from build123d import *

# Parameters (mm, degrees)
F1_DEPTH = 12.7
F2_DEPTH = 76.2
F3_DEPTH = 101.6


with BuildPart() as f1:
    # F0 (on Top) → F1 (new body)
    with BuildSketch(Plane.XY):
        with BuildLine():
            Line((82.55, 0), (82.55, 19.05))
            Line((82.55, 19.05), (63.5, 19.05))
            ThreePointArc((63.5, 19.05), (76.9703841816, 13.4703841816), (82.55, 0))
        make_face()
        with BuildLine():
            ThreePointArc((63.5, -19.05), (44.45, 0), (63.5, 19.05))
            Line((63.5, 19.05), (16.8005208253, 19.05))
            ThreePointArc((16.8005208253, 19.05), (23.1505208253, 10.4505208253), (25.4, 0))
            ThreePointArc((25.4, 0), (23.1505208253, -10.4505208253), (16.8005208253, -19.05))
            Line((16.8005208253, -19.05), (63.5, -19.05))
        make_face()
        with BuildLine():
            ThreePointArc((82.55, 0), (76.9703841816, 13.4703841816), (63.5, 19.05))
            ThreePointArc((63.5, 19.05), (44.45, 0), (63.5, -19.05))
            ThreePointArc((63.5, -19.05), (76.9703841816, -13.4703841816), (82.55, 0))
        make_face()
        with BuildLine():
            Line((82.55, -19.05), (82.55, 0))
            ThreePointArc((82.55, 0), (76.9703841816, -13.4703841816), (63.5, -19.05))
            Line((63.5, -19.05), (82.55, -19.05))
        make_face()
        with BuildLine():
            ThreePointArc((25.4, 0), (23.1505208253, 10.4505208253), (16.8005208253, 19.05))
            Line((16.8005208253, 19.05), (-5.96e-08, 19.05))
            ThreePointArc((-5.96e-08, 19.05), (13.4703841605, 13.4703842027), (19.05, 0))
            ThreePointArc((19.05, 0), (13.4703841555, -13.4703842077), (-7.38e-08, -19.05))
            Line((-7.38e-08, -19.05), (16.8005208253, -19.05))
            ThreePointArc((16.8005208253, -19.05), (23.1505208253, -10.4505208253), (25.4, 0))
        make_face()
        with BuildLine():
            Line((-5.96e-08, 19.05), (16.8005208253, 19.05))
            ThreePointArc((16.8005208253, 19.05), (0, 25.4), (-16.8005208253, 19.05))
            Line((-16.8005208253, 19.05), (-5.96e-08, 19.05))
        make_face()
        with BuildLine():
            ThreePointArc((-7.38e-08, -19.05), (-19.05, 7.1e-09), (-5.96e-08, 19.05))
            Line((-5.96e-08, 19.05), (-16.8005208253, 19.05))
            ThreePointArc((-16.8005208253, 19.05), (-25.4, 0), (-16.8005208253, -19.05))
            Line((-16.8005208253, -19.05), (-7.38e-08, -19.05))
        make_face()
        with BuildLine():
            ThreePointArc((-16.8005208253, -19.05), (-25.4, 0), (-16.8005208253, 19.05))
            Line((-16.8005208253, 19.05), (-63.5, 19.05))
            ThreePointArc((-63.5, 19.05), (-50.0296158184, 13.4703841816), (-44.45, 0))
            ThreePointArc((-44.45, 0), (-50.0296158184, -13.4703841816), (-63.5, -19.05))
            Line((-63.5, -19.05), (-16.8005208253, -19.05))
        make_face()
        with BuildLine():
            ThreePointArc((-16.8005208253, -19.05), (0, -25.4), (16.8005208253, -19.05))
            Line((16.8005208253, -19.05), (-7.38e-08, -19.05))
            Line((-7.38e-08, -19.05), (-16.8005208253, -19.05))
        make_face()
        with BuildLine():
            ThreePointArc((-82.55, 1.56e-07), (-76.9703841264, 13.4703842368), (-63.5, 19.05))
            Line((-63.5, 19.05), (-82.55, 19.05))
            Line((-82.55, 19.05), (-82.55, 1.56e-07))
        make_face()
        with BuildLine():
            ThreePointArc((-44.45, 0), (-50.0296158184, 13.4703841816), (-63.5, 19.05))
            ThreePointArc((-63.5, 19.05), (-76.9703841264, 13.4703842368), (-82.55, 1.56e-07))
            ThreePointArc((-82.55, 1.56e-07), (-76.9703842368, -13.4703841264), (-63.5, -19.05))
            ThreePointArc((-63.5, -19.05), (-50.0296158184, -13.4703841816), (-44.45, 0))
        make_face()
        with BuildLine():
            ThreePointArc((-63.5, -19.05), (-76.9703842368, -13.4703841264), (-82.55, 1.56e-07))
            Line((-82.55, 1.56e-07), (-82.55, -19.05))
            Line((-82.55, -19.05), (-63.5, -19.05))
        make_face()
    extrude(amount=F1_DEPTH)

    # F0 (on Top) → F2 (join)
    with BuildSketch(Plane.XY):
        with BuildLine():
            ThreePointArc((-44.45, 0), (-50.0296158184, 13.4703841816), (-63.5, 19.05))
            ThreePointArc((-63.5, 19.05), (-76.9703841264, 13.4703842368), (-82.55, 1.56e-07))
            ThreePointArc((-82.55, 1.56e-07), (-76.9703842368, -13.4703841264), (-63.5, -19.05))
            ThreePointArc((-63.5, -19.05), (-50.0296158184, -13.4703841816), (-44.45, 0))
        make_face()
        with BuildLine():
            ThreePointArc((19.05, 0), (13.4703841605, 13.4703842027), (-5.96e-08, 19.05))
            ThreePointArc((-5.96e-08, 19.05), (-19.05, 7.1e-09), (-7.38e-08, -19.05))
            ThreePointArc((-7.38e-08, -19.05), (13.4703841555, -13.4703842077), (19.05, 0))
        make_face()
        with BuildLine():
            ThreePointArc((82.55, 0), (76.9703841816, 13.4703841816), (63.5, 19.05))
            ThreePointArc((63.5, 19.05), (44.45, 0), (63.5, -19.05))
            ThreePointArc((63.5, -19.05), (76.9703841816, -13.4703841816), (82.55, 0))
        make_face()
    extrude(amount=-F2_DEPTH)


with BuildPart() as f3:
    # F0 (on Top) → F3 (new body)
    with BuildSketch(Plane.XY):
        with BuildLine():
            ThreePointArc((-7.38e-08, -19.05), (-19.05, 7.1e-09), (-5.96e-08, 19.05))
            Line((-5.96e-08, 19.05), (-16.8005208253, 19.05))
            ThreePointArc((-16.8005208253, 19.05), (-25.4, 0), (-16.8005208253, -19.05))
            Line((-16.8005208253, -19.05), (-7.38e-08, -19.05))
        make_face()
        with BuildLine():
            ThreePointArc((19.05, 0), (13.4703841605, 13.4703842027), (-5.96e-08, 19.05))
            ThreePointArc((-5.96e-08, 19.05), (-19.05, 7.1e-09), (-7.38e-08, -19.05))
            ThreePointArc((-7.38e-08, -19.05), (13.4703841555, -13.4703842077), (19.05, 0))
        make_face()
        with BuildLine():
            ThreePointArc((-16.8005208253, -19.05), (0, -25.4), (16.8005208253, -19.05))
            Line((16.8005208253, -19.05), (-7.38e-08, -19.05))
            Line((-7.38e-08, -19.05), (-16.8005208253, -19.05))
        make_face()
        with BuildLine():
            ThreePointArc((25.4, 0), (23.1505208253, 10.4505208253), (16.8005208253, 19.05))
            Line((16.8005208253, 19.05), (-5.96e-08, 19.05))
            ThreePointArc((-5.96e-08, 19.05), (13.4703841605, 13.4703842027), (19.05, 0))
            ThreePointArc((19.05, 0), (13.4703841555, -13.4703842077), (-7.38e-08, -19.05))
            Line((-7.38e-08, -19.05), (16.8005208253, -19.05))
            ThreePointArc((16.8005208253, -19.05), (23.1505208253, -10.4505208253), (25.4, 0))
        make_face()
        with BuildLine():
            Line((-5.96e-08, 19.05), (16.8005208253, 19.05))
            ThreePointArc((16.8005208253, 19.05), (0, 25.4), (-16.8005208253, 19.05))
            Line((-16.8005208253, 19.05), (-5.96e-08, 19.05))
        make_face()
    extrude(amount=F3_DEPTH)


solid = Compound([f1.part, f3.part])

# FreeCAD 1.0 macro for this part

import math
import FreeCAD as App
import Part
import Sketcher
from FreeCAD import Vector
Q = App.Units.Quantity

doc = App.newDocument("Part")
body = doc.addObject("PartDesign::Body", "Body")
body.AllowCompound = True

sketch1 = body.newObject("Sketcher::SketchObject", "Sketch")
sketch1.AttachmentSupport = (doc.getObject("XY_Plane"), [""])
sketch1.MapMode = "FlatFace"
sketch1.addGeometry([
    Part.ArcOfCircle(Part.Circle(Vector(0, 0, 0), Vector(0, 0, 1), 25), math.radians(-131), math.radians(-49)),
    Part.LineSegment(Vector(17, -19, 0), Vector(83, -19, 0)),
    Part.LineSegment(Vector(83, -19, 0), Vector(83, 19, 0)),
    Part.LineSegment(Vector(83, 19, 0), Vector(17, 19, 0)),
    Part.ArcOfCircle(Part.Circle(Vector(0, 0, 0), Vector(0, 0, 1), 25), math.radians(49), math.radians(131)),
    Part.LineSegment(Vector(-17, 19, 0), Vector(-83, 19, 0)),
    Part.LineSegment(Vector(-83, 19, 0), Vector(-83, -19, 0)),
    Part.LineSegment(Vector(-83, -19, 0), Vector(-17, -19, 0)),
    Part.Circle(Vector(0, 0, 0), Vector(0, 0, 1), 19),
], False)
sketch1.addConstraint([
    Sketcher.Constraint("Coincident", 0, 2, 1, 1),
    Sketcher.Constraint("Coincident", 1, 2, 2, 1),
    Sketcher.Constraint("Coincident", 2, 2, 3, 1),
    Sketcher.Constraint("Coincident", 3, 2, 4, 1),
    Sketcher.Constraint("Coincident", 4, 2, 5, 1),
    Sketcher.Constraint("Coincident", 5, 2, 6, 1),
    Sketcher.Constraint("Coincident", 6, 2, 7, 1),
    Sketcher.Constraint("Coincident", 7, 2, 0, 1),
    Sketcher.Constraint("Horizontal", 1),
    Sketcher.Constraint("Vertical", 2),
    Sketcher.Constraint("Horizontal", 3),
    Sketcher.Constraint("Horizontal", 5),
    Sketcher.Constraint("Vertical", 6),
    Sketcher.Constraint("Horizontal", 7),
    Sketcher.Constraint("Coincident", 0, 3, -1, 1),
    Sketcher.Constraint("Coincident", 4, 3, -1, 1),
    Sketcher.Constraint("Coincident", 8, 3, -1, 1),
    Sketcher.Constraint("Equal", 0, 4),
    Sketcher.Constraint("Symmetric", 1, 2, 5, 2, -1, 1),
    Sketcher.Constraint("Horizontal", 3, 2, 4, 2),
    Sketcher.Constraint("Horizontal", 1, 2, 6, 2),
    Sketcher.Constraint("Radius", 0, Q("1 in")),
    Sketcher.Constraint("Diameter", 8, Q("1.5 in")),
    Sketcher.Constraint("DistanceY", 2, 1, 2, 2, Q("1.5 in")),
    Sketcher.Constraint("DistanceX", -1, 1, 1, 2, Q("3.25 in")),
])
pad1 = body.newObject("PartDesign::Pad", "Pad")
pad1.Profile = sketch1
pad1.Length = Q("0.5 in")

sketch2 = body.newObject("Sketcher::SketchObject", "Sketch001")
sketch2.AttachmentSupport = (doc.getObject("XY_Plane"), [""])
sketch2.MapMode = "FlatFace"
sketch2.addGeometry([
    Part.ArcOfCircle(Part.Circle(Vector(-64, 0, 0), Vector(0, 0, 1), 19), math.radians(0), math.radians(90)),
    Part.ArcOfCircle(Part.Circle(Vector(-64, 0, 0), Vector(0, 0, 1), 19), math.radians(90), math.radians(180)),
    Part.ArcOfCircle(Part.Circle(Vector(-64, 0, 0), Vector(0, 0, 1), 19), math.radians(180), math.radians(270)),
    Part.ArcOfCircle(Part.Circle(Vector(-64, 0, 0), Vector(0, 0, 1), 19), math.radians(-90), math.radians(0)),
    Part.Circle(Vector(0, 0, 0), Vector(0, 0, 1), 19),
    Part.Circle(Vector(64, 0, 0), Vector(0, 0, 1), 19),
], False)
sketch2.addConstraint([
    Sketcher.Constraint("Tangent", 0, 2, 1, 1),
    Sketcher.Constraint("Tangent", 1, 2, 2, 1),
    Sketcher.Constraint("Tangent", 2, 2, 3, 1),
    Sketcher.Constraint("Tangent", 3, 2, 0, 1),
    Sketcher.Constraint("Coincident", 4, 3, -1, 1),
    Sketcher.Constraint("Equal", 0, 1),
    Sketcher.Constraint("Equal", 3, 4),
    Sketcher.Constraint("Equal", 4, 5),
    Sketcher.Constraint("Symmetric", 0, 3, 5, 3, -1, 1),
    Sketcher.Constraint("Symmetric", 0, 2, 2, 2, -1),
    Sketcher.Constraint("PointOnObject", 1, 2, -1),
    Sketcher.Constraint("PointOnObject", 3, 2, -1),
    Sketcher.Constraint("Vertical", 3, 3, 0, 2),
    Sketcher.Constraint("Diameter", 4, Q("1.5 in")),
    Sketcher.Constraint("DistanceX", 0, 3, 5, 3, Q("5 in")),
])
pad2 = body.newObject("PartDesign::Pad", "Pad001")
pad2.Profile = sketch2
pad2.Length = Q("3 in")
pad2.Reversed = True
body2 = doc.addObject("PartDesign::Body", "Body001")

sketch3 = body2.newObject("Sketcher::SketchObject", "Sketch002")
sketch3.AttachmentSupport = (doc.getObject("XY_Plane001"), [""])
sketch3.MapMode = "FlatFace"
sketch3.addGeometry([
    Part.ArcOfCircle(Part.Circle(Vector(0, 0, 0), Vector(0, 0, 1), 25), math.radians(131), math.radians(229)),
    Part.ArcOfCircle(Part.Circle(Vector(0, 0, 0), Vector(0, 0, 1), 25), math.radians(-131), math.radians(-49)),
    Part.ArcOfCircle(Part.Circle(Vector(0, 0, 0), Vector(0, 0, 1), 25), math.radians(-49), math.radians(0)),
    Part.ArcOfCircle(Part.Circle(Vector(0, 0, 0), Vector(0, 0, 1), 25), math.radians(0), math.radians(49)),
    Part.ArcOfCircle(Part.Circle(Vector(0, 0, 0), Vector(0, 0, 1), 25), math.radians(49), math.radians(131)),
], False)
sketch3.addConstraint([
    Sketcher.Constraint("Tangent", 0, 2, 1, 1),
    Sketcher.Constraint("Tangent", 1, 2, 2, 1),
    Sketcher.Constraint("Tangent", 2, 2, 3, 1),
    Sketcher.Constraint("Tangent", 3, 2, 4, 1),
    Sketcher.Constraint("Tangent", 4, 2, 0, 1),
    Sketcher.Constraint("Coincident", 0, 3, -1, 1),
    Sketcher.Constraint("Coincident", 2, 3, -1, 1),
    Sketcher.Constraint("PointOnObject", 2, 2, -1),
    Sketcher.Constraint("Horizontal", 0, 2, 1, 2),
    Sketcher.Constraint("Horizontal", 3, 2, 4, 2),
    Sketcher.Constraint("Vertical", 1, 2, 3, 2),
    Sketcher.Constraint("Radius", 0, Q("1 in")),
    Sketcher.Constraint("DistanceY", 0, 2, -1, 1, Q("0.75 in")),
])
pad3 = body2.newObject("PartDesign::Pad", "Pad002")
pad3.Profile = sketch3
pad3.Length = Q("4 in")

doc.recompute()
